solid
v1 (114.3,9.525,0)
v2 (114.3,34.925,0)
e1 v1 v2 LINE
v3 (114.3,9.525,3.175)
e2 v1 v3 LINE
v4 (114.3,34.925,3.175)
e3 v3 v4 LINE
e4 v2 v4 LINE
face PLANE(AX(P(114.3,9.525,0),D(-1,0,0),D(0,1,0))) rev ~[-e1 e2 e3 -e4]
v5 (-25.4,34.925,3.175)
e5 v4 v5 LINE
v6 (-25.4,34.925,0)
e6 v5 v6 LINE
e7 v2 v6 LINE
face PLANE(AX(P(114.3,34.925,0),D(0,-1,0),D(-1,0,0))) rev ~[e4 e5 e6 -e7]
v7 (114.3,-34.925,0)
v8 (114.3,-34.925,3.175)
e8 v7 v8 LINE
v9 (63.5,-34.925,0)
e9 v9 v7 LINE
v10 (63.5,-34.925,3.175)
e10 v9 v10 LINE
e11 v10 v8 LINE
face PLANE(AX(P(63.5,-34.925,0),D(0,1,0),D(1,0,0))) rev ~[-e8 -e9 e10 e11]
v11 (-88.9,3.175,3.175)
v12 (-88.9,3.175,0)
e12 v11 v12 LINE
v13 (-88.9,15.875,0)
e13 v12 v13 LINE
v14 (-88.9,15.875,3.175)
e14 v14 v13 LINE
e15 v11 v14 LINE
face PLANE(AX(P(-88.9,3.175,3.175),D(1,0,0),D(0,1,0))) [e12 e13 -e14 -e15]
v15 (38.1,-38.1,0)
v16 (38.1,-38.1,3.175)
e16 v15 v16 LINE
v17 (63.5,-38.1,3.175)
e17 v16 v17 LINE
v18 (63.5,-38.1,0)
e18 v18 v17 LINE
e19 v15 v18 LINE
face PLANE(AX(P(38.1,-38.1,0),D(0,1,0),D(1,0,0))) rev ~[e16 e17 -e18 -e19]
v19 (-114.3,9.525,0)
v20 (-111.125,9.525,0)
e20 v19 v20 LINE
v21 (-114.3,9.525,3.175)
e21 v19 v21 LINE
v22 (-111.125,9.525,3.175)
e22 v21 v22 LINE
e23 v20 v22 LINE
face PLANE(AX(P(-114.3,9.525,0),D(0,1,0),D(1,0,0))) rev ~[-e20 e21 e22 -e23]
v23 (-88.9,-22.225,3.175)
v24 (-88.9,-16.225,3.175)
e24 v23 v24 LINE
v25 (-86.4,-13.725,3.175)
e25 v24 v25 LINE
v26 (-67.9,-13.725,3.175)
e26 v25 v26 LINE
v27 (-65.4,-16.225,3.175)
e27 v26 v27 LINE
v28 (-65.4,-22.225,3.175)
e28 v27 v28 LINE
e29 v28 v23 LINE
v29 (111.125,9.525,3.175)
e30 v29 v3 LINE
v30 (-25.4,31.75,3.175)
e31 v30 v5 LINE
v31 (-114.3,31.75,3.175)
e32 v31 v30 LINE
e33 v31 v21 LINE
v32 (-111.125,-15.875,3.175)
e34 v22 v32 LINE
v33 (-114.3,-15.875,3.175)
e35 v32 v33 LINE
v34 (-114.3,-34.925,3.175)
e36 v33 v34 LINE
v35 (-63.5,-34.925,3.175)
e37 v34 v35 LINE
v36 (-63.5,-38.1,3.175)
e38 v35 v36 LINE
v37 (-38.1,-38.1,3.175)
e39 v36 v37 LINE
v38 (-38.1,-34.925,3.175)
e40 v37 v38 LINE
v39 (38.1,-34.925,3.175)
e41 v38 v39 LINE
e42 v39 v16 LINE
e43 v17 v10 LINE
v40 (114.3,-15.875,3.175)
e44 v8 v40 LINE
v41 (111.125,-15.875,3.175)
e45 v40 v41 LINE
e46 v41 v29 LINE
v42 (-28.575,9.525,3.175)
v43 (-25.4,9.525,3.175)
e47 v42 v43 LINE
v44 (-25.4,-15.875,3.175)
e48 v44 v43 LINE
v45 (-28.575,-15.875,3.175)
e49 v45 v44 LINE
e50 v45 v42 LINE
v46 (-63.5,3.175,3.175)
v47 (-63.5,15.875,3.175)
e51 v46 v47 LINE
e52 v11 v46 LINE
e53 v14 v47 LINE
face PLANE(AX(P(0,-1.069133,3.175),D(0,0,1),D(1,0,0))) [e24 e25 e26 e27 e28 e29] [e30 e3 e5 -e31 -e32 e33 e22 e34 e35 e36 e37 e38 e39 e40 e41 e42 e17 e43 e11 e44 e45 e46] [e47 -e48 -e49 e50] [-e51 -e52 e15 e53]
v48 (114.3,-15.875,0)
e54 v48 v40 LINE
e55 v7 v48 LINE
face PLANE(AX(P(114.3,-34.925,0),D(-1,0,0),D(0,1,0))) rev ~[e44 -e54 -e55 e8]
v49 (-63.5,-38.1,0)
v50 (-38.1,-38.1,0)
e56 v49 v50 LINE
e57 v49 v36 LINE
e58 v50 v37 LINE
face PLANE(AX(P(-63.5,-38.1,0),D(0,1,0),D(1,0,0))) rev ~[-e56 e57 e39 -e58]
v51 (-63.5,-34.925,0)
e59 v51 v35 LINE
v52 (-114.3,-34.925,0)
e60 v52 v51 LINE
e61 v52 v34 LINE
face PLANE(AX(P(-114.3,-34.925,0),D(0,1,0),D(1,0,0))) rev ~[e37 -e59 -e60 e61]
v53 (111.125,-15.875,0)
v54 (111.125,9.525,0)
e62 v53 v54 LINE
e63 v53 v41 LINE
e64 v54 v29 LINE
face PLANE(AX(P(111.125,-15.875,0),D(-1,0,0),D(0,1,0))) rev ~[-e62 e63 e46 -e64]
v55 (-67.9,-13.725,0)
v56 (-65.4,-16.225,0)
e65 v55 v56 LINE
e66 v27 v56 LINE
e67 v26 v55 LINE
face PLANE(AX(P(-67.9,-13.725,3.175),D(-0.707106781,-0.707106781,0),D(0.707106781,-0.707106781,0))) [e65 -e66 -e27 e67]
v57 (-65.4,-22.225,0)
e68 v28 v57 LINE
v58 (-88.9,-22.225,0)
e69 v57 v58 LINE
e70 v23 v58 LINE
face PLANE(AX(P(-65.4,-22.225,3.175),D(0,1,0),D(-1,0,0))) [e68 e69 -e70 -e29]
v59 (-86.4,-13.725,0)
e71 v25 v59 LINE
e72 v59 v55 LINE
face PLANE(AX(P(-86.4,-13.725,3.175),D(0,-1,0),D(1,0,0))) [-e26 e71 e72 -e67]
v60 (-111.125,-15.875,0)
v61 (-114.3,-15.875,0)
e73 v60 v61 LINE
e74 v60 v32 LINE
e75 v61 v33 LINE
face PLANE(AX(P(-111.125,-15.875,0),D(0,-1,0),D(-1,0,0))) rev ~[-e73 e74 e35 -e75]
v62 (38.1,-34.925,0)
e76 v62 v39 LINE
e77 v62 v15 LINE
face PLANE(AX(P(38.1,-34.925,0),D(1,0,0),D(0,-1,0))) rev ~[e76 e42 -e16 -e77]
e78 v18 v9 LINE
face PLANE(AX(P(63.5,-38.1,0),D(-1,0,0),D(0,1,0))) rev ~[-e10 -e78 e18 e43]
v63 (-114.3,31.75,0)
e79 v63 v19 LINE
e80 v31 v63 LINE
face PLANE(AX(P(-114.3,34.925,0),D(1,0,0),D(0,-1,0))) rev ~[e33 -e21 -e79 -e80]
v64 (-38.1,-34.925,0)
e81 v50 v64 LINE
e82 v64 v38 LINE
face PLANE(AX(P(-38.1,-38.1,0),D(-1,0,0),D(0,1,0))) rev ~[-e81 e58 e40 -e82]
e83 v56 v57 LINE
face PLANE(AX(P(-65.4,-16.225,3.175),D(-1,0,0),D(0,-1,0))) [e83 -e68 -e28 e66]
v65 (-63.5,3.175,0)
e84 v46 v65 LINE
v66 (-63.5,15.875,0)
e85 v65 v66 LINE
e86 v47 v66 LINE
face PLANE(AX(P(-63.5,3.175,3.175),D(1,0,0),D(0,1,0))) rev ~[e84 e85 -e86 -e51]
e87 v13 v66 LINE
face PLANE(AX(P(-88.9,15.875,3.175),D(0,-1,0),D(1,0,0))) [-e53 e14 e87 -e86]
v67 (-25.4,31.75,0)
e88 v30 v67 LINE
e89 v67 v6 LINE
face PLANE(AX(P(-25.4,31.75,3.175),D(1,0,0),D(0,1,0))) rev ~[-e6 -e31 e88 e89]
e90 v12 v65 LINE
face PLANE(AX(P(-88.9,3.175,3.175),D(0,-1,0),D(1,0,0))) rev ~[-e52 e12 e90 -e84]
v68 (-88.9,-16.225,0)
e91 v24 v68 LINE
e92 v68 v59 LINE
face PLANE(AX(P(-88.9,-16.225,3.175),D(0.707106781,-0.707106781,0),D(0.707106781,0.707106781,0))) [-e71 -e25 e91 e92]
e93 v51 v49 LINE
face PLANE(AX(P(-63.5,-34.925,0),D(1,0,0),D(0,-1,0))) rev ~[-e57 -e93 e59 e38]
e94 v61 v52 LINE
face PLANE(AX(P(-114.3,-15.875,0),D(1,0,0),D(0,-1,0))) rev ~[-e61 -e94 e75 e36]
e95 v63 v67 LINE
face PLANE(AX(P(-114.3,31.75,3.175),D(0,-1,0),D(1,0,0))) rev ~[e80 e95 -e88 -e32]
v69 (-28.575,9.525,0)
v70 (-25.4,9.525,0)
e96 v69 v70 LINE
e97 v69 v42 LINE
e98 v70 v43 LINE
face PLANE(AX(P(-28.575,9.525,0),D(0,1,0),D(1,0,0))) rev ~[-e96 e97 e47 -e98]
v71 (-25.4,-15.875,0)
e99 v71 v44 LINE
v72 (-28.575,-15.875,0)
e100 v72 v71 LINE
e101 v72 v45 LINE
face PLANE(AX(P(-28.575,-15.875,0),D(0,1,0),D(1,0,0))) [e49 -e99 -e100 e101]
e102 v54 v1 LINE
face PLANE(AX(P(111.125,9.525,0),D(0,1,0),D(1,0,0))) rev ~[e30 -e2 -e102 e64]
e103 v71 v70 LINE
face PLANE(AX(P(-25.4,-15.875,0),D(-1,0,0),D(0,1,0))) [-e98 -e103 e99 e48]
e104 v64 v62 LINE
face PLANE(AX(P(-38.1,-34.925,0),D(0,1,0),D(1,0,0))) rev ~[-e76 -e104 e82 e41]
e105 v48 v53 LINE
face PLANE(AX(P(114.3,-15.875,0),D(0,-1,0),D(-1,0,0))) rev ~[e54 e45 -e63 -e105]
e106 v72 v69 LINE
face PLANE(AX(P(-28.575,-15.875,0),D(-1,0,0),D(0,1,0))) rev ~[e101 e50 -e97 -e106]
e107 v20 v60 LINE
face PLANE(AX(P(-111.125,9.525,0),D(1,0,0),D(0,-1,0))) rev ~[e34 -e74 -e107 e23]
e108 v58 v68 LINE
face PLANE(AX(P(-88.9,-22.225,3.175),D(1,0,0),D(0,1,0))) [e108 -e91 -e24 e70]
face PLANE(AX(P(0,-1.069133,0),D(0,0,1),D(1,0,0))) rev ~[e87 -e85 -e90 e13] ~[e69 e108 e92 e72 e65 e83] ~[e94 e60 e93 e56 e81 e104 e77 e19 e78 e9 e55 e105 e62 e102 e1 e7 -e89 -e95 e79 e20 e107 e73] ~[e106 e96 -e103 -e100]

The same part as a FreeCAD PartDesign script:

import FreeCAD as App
import Part
import Sketcher
Q = App.Units.Quantity


def add_polygon(sketch, points):
    """Adds a closed chain of lines whose ends are joined by coincident constraints."""
    first, n = sketch.GeometryCount, len(points)
    for a, b in zip(points, points[1:] + points[:1]):
        sketch.addGeometry(Part.LineSegment(App.Vector(*a, 0), App.Vector(*b, 0)), False)
    for i in range(n):
        sketch.addConstraint(Sketcher.Constraint("Coincident", first + i, 2, first + (i + 1) % n, 1))

doc = App.newDocument("Part")
body = doc.addObject("PartDesign::Body", "Body")

# Sketch on XY plane
sketch1 = body.newObject("Sketcher::SketchObject", "Sketch")
sketch1.AttachmentSupport = (doc.getObject("XY_Plane"), [""])
sketch1.MapMode = "FlatFace"
add_polygon(sketch1, [(-114.3, 34.9), (-114.3, 9.5), (-111.1, 9.5), (-111.1, -15.9), (-114.3, -15.9), (-114.3, -34.9), (-63.5, -34.9), (-63.5, -38.1), (-38.1, -38.1), (-38.1, -34.9), (38.1, -34.9), (38.1, -38.1), (63.5, -38.1), (63.5, -34.9), (114.3, -34.9), (114.3, -15.9), (111.1, -15.9), (111.1, 9.5), (114.3, 9.5), (114.3, 34.9)])  # lines 0-19
add_polygon(sketch1, [(-25.4, -15.9), (-28.6, -15.9), (-28.6, 9.5), (-25.4, 9.5)])  # lines 20-23
sketch1.addConstraint([
    Sketcher.Constraint("Vertical", 0),
    Sketcher.Constraint("Horizontal", 1),
    Sketcher.Constraint("Vertical", 2),
    Sketcher.Constraint("Horizontal", 3),
    Sketcher.Constraint("Vertical", 4),
    Sketcher.Constraint("Horizontal", 5),
    Sketcher.Constraint("Vertical", 6),
    Sketcher.Constraint("Horizontal", 7),
    Sketcher.Constraint("Vertical", 8),
    Sketcher.Constraint("Horizontal", 9),
    Sketcher.Constraint("Vertical", 10),
    Sketcher.Constraint("Horizontal", 11),
    Sketcher.Constraint("Vertical", 12),
    Sketcher.Constraint("Horizontal", 13),
    Sketcher.Constraint("Vertical", 14),
    Sketcher.Constraint("Horizontal", 15),
    Sketcher.Constraint("Vertical", 16),
    Sketcher.Constraint("Horizontal", 17),
    Sketcher.Constraint("Vertical", 18),
    Sketcher.Constraint("Horizontal", 19),
    Sketcher.Constraint("Horizontal", 20),
    Sketcher.Constraint("Vertical", 21),
    Sketcher.Constraint("Horizontal", 22),
    Sketcher.Constraint("Vertical", 23),
    Sketcher.Constraint("Symmetric", 4, 2, 18, 2, -1, 1),
    Sketcher.Constraint("Symmetric", 13, 2, 19, 2, -1, 1),
    Sketcher.Constraint("Symmetric", 7, 2, 10, 2, -2),
    Sketcher.Constraint("Symmetric", 3, 2, 14, 2, -2),
    Sketcher.Constraint("Symmetric", 1, 2, 16, 2, -2),
    Sketcher.Constraint("Horizontal", 5, 2, 8, 2),
    Sketcher.Constraint("Horizontal", 15, 2, 20, 2),
    Sketcher.Constraint("Horizontal", 17, 2, 21, 2),
    Sketcher.Constraint("Equal", 7, 11),
    Sketcher.Constraint("Equal", 17, 20),
    Sketcher.Constraint("Equal", 11, 0),
    Sketcher.Constraint("Equal", 0, 2),
    Sketcher.Constraint("Equal", 22, 6),
    Sketcher.Constraint("DistanceX", 5, 1, 5, 2, Q("2 in")),
    Sketcher.Constraint("DistanceX", 7, 1, 7, 2, Q("1 in")),
    Sketcher.Constraint("DistanceX", 9, 1, 9, 2, Q("3 in")),
    Sketcher.Constraint("DistanceX", 22, 2, -1, 1, Q("1 in")),
    Sketcher.Constraint("DistanceY", 4, 2, 4, 1, Q("0.75 in")),
    Sketcher.Constraint("DistanceY", 6, 2, -1, 1, Q("1.5 in")),
])
pad1 = body.newObject("PartDesign::Pad", "Pad")
pad1.Profile = sketch1
pad1.Length = Q("0.125 in")

# Sketch on XY plane
sketch2 = body.newObject("Sketcher::SketchObject", "Sketch001")
sketch2.AttachmentSupport = (doc.getObject("XY_Plane"), [""])
sketch2.MapMode = "FlatFace"
sketch2.AttachmentOffset = App.Placement(App.Vector(0, 0, 0.125 * 25.4), App.Rotation())
add_polygon(sketch2, [(-86.4, -13.7), (-88.9, -16.2), (-88.9, -22.2), (-65.4, -22.2), (-65.4, -16.2), (-67.9, -13.7)])  # lines 0-5
add_polygon(sketch2, [(-88.9, 15.9), (-88.9, 3.2), (-63.5, 3.2), (-63.5, 15.9)])  # lines 6-9
sketch2.addConstraint([
    Sketcher.Constraint("Vertical", 1),
    Sketcher.Constraint("Horizontal", 2),
    Sketcher.Constraint("Vertical", 3),
    Sketcher.Constraint("Horizontal", 5),
    Sketcher.Constraint("Vertical", 6),
    Sketcher.Constraint("Horizontal", 7),
    Sketcher.Constraint("Vertical", 8),
    Sketcher.Constraint("Horizontal", 9),
    Sketcher.Constraint("Perpendicular", 0, 4),
    Sketcher.Constraint("Horizontal", 0, 2, 3, 2),
    Sketcher.Constraint("Vertical", 1, 2, 6, 2),
    Sketcher.Constraint("Equal", 0, 4),
    Sketcher.Constraint("DistanceX", 7, 1, 7, 2, Q("1 in")),
    Sketcher.Constraint("DistanceY", 6, 2, 6, 1, Q("0.5 in")),
    Sketcher.Constraint("DistanceY", 1, 2, 6, 2, Q("1 in")),
    Sketcher.Constraint("DistanceX", 0, 2, -1, 1, Q("3.5 in")),
    Sketcher.Constraint("DistanceY", 1, 2, -1, 1, Q("0.875 in")),
    Sketcher.Constraint("DistanceX", 2, 1, 2, 2, 23.5),
    Sketcher.Constraint("DistanceX", 5, 2, 5, 1, 18.5),
    Sketcher.Constraint("DistanceY", 1, 2, 1, 1, 6.0),
])
pocket1 = body.newObject("PartDesign::Pocket", "Pocket")
pocket1.Profile = sketch2
pocket1.Type = "ThroughAll"

# Sketch on XY plane
sketch3 = body.newObject("Sketcher::SketchObject", "Sketch002")
sketch3.AttachmentSupport = (doc.getObject("XY_Plane"), [""])
sketch3.MapMode = "FlatFace"
sketch3.AttachmentOffset = App.Placement(App.Vector(0, 0, 0.125 * 25.4), App.Rotation())
add_polygon(sketch3, [(-114.3, 34.9), (-114.3, 31.8), (-25.4, 31.8), (-25.4, 34.9)])  # lines 0-3
sketch3.addConstraint([
    Sketcher.Constraint("Vertical", 0),
    Sketcher.Constraint("Horizontal", 1),
    Sketcher.Constraint("Vertical", 2),
    Sketcher.Constraint("Horizontal", 3),
    Sketcher.Constraint("DistanceX", 1, 1, 1, 2, Q("3.5 in")),
    Sketcher.Constraint("DistanceX", 1, 2, -1, 1, Q("1 in")),
    Sketcher.Constraint("DistanceY", 0, 2, 0, 1, Q("0.125 in")),
    Sketcher.Constraint("DistanceY", -1, 1, 0, 2, Q("1.25 in")),
])
pocket2 = body.newObject("PartDesign::Pocket", "Pocket001")
pocket2.Profile = sketch3
pocket2.Type = "ThroughAll"

doc.recompute()
